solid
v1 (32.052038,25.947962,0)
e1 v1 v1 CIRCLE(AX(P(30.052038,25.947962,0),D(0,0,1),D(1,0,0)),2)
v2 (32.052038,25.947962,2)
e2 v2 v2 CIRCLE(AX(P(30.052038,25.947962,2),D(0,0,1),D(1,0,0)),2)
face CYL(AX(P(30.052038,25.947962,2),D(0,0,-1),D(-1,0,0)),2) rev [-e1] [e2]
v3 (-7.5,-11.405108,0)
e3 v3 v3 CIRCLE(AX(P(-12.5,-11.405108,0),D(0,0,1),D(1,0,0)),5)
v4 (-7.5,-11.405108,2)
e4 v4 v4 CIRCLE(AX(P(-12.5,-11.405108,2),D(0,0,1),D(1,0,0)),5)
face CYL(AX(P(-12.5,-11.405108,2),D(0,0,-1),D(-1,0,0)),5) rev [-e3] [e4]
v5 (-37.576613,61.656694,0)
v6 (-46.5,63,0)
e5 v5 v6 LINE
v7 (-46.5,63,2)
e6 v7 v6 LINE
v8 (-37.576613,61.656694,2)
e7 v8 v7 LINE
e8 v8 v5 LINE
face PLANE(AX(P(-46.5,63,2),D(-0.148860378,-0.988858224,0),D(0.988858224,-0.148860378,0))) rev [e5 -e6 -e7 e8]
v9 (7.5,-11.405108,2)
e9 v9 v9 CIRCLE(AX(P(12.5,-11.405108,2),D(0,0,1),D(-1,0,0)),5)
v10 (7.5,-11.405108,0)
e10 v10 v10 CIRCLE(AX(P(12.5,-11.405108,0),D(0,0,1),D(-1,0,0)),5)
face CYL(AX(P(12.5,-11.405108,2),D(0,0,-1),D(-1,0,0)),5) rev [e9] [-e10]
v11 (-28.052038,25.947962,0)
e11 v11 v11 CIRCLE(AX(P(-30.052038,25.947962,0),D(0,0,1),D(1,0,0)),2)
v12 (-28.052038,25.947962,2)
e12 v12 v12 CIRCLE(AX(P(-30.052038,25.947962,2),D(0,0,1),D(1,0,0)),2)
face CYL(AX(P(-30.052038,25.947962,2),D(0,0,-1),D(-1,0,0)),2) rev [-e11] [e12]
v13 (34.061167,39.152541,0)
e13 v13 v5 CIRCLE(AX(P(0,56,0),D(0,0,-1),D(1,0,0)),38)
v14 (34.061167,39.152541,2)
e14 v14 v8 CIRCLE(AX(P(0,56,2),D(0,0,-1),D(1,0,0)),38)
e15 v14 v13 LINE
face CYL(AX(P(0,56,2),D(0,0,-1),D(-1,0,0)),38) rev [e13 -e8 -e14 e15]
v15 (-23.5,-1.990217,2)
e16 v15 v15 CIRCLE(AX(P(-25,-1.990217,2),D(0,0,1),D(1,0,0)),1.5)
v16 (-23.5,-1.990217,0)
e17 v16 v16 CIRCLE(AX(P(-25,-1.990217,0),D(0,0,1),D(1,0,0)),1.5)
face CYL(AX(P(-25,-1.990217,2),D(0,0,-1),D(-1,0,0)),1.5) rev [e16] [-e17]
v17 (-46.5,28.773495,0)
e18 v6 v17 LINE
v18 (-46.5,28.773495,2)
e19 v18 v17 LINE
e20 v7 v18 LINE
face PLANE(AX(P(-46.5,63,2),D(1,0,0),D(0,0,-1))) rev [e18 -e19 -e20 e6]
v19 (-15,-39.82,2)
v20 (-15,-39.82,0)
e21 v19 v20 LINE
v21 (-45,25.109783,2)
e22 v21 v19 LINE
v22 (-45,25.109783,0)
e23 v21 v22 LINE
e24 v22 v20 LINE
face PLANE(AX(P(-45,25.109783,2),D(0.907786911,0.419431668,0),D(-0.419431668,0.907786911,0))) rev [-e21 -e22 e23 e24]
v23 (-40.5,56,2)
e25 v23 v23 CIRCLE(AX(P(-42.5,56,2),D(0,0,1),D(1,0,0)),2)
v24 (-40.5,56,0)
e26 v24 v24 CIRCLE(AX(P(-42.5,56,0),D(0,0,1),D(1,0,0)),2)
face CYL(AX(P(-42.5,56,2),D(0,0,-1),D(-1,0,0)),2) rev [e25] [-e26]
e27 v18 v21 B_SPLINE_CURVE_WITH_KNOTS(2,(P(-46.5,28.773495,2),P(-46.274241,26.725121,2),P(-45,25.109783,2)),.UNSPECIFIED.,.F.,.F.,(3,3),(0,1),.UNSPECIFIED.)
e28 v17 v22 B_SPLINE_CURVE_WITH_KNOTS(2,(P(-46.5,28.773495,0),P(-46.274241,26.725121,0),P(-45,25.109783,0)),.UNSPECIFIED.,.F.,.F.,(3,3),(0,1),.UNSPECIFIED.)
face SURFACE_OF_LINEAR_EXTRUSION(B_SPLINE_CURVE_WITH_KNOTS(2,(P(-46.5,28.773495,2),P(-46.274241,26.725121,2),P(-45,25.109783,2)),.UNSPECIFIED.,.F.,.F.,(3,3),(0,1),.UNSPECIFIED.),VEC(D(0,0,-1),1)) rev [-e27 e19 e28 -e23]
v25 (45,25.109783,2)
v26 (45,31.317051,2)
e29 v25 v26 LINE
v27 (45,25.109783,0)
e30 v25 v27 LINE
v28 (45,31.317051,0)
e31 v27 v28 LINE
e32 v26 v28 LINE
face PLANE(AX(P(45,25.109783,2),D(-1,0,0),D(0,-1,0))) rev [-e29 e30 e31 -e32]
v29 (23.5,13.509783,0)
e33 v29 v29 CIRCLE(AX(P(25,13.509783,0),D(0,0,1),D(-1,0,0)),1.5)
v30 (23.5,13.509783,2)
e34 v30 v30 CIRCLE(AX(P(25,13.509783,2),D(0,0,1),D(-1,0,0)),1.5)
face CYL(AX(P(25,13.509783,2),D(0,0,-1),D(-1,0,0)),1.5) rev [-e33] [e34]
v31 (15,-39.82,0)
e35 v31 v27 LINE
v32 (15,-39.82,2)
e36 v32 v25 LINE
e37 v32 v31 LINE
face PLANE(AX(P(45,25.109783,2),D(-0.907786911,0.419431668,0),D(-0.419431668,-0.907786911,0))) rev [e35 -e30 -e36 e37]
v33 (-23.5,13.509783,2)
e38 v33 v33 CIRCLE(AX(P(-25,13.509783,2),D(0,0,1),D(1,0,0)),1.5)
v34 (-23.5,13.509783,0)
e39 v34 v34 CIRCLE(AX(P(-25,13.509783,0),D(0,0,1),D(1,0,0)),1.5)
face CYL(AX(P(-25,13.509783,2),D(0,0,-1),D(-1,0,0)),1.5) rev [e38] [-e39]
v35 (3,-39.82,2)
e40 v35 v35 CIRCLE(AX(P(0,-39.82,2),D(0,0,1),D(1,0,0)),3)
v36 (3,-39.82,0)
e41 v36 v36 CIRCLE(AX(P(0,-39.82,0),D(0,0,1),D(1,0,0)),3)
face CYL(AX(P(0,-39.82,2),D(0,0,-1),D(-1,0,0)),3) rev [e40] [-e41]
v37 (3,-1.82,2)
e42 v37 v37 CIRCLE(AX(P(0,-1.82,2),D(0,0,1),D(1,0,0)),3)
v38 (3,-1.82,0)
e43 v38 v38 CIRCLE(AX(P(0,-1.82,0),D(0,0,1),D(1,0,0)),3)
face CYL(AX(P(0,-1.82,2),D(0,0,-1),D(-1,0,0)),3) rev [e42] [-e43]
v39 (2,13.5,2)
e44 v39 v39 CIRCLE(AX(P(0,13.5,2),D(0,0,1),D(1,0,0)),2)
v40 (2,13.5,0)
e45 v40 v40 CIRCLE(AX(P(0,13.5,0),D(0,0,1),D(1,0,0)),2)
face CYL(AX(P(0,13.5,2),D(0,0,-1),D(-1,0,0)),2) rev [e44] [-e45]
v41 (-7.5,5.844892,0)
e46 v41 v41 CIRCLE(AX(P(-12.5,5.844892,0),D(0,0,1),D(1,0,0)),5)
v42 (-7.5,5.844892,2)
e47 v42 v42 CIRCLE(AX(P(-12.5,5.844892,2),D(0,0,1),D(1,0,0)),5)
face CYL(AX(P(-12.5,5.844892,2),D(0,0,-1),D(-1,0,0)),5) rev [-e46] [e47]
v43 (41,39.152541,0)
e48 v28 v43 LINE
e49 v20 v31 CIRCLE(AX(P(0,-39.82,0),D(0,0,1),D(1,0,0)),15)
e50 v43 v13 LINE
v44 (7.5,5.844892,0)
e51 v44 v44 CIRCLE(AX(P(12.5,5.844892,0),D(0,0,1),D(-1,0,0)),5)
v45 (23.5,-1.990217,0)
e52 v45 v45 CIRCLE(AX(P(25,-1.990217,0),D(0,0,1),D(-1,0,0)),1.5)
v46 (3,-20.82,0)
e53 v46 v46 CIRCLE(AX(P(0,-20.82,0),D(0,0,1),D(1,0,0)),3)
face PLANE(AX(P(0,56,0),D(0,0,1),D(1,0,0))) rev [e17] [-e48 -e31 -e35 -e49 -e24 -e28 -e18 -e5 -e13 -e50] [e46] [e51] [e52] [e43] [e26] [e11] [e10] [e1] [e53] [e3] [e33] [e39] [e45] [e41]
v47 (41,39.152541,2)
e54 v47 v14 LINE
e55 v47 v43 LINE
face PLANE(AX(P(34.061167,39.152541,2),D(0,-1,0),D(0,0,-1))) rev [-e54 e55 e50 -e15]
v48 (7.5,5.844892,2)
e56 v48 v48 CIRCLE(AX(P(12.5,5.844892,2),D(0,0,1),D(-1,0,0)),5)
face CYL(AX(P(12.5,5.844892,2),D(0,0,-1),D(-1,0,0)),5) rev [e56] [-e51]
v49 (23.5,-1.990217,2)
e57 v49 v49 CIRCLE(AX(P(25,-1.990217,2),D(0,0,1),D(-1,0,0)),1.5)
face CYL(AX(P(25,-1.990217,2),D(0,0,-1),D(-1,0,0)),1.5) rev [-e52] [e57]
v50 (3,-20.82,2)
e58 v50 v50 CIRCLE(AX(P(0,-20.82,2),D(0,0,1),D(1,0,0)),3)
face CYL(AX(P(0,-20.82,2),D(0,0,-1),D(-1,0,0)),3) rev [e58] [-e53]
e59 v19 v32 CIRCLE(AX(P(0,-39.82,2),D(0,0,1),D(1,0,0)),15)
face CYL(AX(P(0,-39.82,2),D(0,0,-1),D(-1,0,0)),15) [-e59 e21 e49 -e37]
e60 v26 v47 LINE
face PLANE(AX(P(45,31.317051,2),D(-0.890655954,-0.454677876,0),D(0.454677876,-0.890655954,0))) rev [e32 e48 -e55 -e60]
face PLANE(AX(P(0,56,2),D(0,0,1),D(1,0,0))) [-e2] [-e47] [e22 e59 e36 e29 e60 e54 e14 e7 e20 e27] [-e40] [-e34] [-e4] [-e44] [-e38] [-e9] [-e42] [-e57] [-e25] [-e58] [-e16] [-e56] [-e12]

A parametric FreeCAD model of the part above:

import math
import FreeCAD as App
import Part
import Sketcher
Q = App.Units.Quantity

doc = App.newDocument("Part")
params = doc.addObject("Spreadsheet::Sheet", "Params")
for row, (alias, value) in enumerate([
    ("sketch1_diameter", "6 mm"),
    ("sketch1_diameter2", "3 mm"),
    ("sketch1_diameter3", "10 mm"),
    ("sketch1_diameter4", "4 mm"),
    ("sketch1_radius", "15 mm"),
    ("pad1_length", "2 mm"),
], start=1):
    params.set(f"A{row}", alias)
    params.set(f"B{row}", "=" + value)
    params.setAlias(f"B{row}", alias)

body = doc.addObject("PartDesign::Body", "Body")

# Sketch on XY plane
sketch1 = doc.addObject("Sketcher::SketchObject", "Sketch")
body.addObject(sketch1)
sketch1.AttachmentSupport = (doc.XY_Plane, [""])
sketch1.MapMode = "FlatFace"
sketch1.addGeometry([
    Part.LineSegment(App.Vector(-37.576613, 61.656694, 0), App.Vector(-46.5, 63, 0)),  # 0
    Part.LineSegment(App.Vector(-46.5, 63, 0), App.Vector(-46.5, 28.773495, 0)),  # 1
    Part.BSplineCurve([App.Vector(-45, 25.109783, 0), App.Vector(-46.274241, 26.725121, 0), App.Vector(-46.5, 28.773495, 0)], [3, 3], [0, 1], False, 2, [1, 1, 1], False),  # 2
    Part.LineSegment(App.Vector(-45, 25.109783, 0), App.Vector(-15, -39.82, 0)),  # 3
    Part.ArcOfCircle(Part.Circle(App.Vector(0, -39.82, 0), App.Vector(0, 0, 1), 15), math.radians(180), math.radians(360)),  # 4
    Part.LineSegment(App.Vector(15, -39.82, 0), App.Vector(45, 25.109783, 0)),  # 5
    Part.LineSegment(App.Vector(45, 25.109783, 0), App.Vector(45, 31.317051, 0)),  # 6
    Part.LineSegment(App.Vector(45, 31.317051, 0), App.Vector(41, 39.152541, 0)),  # 7
    Part.LineSegment(App.Vector(41, 39.152541, 0), App.Vector(34.061167, 39.152541, 0)),  # 8
    Part.ArcOfCircle(Part.Circle(App.Vector(0, 56, 0), App.Vector(0, 0, 1), 38), math.radians(171.43911), math.radians(333.681912)),  # 9
    Part.Circle(App.Vector(0, -39.82, 0), App.Vector(0, 0, 1), 3),  # 10
    Part.Circle(App.Vector(0, -20.82, 0), App.Vector(0, 0, 1), 3),  # 11
    Part.Circle(App.Vector(25, -1.990217, 0), App.Vector(0, 0, 1), 1.5),  # 12
    Part.Circle(App.Vector(12.5, -11.405108, 0), App.Vector(0, 0, 1), 5),  # 13
    Part.Circle(App.Vector(12.5, 5.844892, 0), App.Vector(0, 0, 1), 5),  # 14
    Part.Circle(App.Vector(0, -1.82, 0), App.Vector(0, 0, 1), 3),  # 15
    Part.Circle(App.Vector(-12.5, -11.405108, 0), App.Vector(0, 0, 1), 5),  # 16
    Part.Circle(App.Vector(-12.5, 5.844892, 0), App.Vector(0, 0, 1), 5),  # 17
    Part.Circle(App.Vector(-25, -1.990217, 0), App.Vector(0, 0, 1), 1.5),  # 18
    Part.Circle(App.Vector(25, 13.509783, 0), App.Vector(0, 0, 1), 1.5),  # 19
    Part.Circle(App.Vector(30.052038, 25.947962, 0), App.Vector(0, 0, 1), 2),  # 20
    Part.Circle(App.Vector(0, 13.5, 0), App.Vector(0, 0, 1), 2),  # 21
    Part.Circle(App.Vector(-25, 13.509783, 0), App.Vector(0, 0, 1), 1.5),  # 22
    Part.Circle(App.Vector(-30.052038, 25.947962, 0), App.Vector(0, 0, 1), 2),  # 23
    Part.Circle(App.Vector(-42.5, 56, 0), App.Vector(0, 0, 1), 2),  # 24
], False)
sketch1.addConstraint([
    Sketcher.Constraint("Block", 2),
    Sketcher.Constraint("Coincident", 0, 2, 1, 1),
    Sketcher.Constraint("Coincident", 1, 2, 2, 2),
    Sketcher.Constraint("Coincident", 2, 1, 3, 1),
    Sketcher.Constraint("Coincident", 3, 2, 4, 1),
    Sketcher.Constraint("Coincident", 4, 2, 5, 1),
    Sketcher.Constraint("Coincident", 5, 2, 6, 1),
    Sketcher.Constraint("Coincident", 6, 2, 7, 1),
    Sketcher.Constraint("Coincident", 7, 2, 8, 1),
    Sketcher.Constraint("Coincident", 8, 2, 9, 2),
    Sketcher.Constraint("Coincident", 9, 1, 0, 1),
    Sketcher.Constraint("Vertical", 1),
    Sketcher.Constraint("Vertical", 6),
    Sketcher.Constraint("Horizontal", 8),
    Sketcher.Constraint("Coincident", 10, 3, 4, 3),
    Sketcher.Constraint("Equal", 10, 11),
    Sketcher.Constraint("Equal", 13, 14),
    Sketcher.Constraint("Equal", 11, 15),
    Sketcher.Constraint("Equal", 14, 16),
    Sketcher.Constraint("Equal", 16, 17),
    Sketcher.Constraint("Equal", 12, 18),
    Sketcher.Constraint("Equal", 18, 19),
    Sketcher.Constraint("Equal", 20, 21),
    Sketcher.Constraint("Equal", 19, 22),
    Sketcher.Constraint("Equal", 21, 23),
    Sketcher.Constraint("Equal", 23, 24),
    Sketcher.Constraint("Symmetric", 13, 3, 16, 3, -2),
    Sketcher.Constraint("Symmetric", 14, 3, 17, 3, -2),
    Sketcher.Constraint("Symmetric", 12, 3, 18, 3, -2),
    Sketcher.Constraint("Symmetric", 19, 3, 22, 3, -2),
    Sketcher.Constraint("Symmetric", 20, 3, 23, 3, -2),
    Sketcher.Constraint("Symmetric", 3, 2, 4, 2, -2),
    Sketcher.Constraint("PointOnObject", 9, 3, -2),
    Sketcher.Constraint("PointOnObject", 11, 3, -2),
    Sketcher.Constraint("PointOnObject", 15, 3, -2),
    Sketcher.Constraint("PointOnObject", 21, 3, -2),
    Sketcher.Constraint("Horizontal", 9, 3, 24, 3),
    Sketcher.Constraint("Horizontal", 10, 3, 3, 2),
    Sketcher.Constraint("Vertical", 13, 3, 14, 3),
    Sketcher.Constraint("Vertical", 12, 3, 19, 3),
    Sketcher.Constraint("Equal", 3, 5),
    Sketcher.Constraint("Diameter", 10, Q("6 mm")),
    Sketcher.Constraint("Diameter", 12, Q("3 mm")),
    Sketcher.Constraint("Diameter", 13, Q("10 mm")),
    Sketcher.Constraint("Diameter", 20, Q("4 mm")),
    Sketcher.Constraint("Radius", 4, Q("15 mm")),
    Sketcher.Constraint("Radius", 9, Q("38 mm")),
    Sketcher.Constraint("DistanceY", -1, 1, 9, 3, Q("56 mm")),
    Sketcher.Constraint("DistanceX", -1, 1, 12, 3, Q("25 mm")),
    Sketcher.Constraint("DistanceY", -1, 1, 0, 2, Q("63 mm")),
    Sketcher.Constraint("DistanceX", -1, 1, 5, 2, Q("45 mm")),
    Sketcher.Constraint("DistanceX", -1, 1, 7, 2, Q("41 mm")),
    Sketcher.Constraint("DistanceY", 4, 3, 11, 3, Q("19 mm")),
    Sketcher.Constraint("DistanceY", 11, 3, 15, 3, Q("19 mm")),
    Sketcher.Constraint("DistanceX", 16, 3, 13, 3, Q("25 mm")),
    Sketcher.Constraint("DistanceX", 24, 3, 17, 3, Q("30 mm")),
    Sketcher.Constraint("DistanceY", -1, 1, 21, 3, Q("13.5 mm")),
    Sketcher.Constraint("DistanceY", 12, 3, 19, 3, Q("15.5 mm")),
    Sketcher.Constraint("DistanceY", 19, 3, 5, 2, Q("11.6 mm")),
    Sketcher.Constraint("DistanceY", 4, 3, -1, 1, Q("39.82 mm")),
    Sketcher.Constraint("DistanceY", 13, 3, 14, 3, Q("17.25 mm")),
    Sketcher.Constraint("DistanceY", 1, 2, 9, 1, Q("32.8832 mm")),
    Sketcher.Constraint("DistanceX", 8, 2, 8, 1, Q("6.938833 mm")),
    Sketcher.Constraint("DistanceY", 6, 1, 6, 2, Q("6.207268 mm")),
    Sketcher.Constraint("DistanceY", 13, 3, -1, 1, Q("11.405108 mm")),
    Sketcher.Constraint("DistanceX", -1, 1, 20, 3, Q("30.052038 mm")),
    Sketcher.Constraint("DistanceY", -1, 1, 20, 3, Q("25.947962 mm")),
])
sketch1.setExpression("Constraints[41]", "Params.sketch1_diameter")
sketch1.setExpression("Constraints[42]", "Params.sketch1_diameter2")
sketch1.setExpression("Constraints[43]", "Params.sketch1_diameter3")
sketch1.setExpression("Constraints[44]", "Params.sketch1_diameter4")
sketch1.setExpression("Constraints[45]", "Params.sketch1_radius")
pad1 = doc.addObject("PartDesign::Pad", "Pad")
body.addObject(pad1)
pad1.Profile = sketch1
pad1.setExpression("Length", "Params.pad1_length")

doc.recompute()
